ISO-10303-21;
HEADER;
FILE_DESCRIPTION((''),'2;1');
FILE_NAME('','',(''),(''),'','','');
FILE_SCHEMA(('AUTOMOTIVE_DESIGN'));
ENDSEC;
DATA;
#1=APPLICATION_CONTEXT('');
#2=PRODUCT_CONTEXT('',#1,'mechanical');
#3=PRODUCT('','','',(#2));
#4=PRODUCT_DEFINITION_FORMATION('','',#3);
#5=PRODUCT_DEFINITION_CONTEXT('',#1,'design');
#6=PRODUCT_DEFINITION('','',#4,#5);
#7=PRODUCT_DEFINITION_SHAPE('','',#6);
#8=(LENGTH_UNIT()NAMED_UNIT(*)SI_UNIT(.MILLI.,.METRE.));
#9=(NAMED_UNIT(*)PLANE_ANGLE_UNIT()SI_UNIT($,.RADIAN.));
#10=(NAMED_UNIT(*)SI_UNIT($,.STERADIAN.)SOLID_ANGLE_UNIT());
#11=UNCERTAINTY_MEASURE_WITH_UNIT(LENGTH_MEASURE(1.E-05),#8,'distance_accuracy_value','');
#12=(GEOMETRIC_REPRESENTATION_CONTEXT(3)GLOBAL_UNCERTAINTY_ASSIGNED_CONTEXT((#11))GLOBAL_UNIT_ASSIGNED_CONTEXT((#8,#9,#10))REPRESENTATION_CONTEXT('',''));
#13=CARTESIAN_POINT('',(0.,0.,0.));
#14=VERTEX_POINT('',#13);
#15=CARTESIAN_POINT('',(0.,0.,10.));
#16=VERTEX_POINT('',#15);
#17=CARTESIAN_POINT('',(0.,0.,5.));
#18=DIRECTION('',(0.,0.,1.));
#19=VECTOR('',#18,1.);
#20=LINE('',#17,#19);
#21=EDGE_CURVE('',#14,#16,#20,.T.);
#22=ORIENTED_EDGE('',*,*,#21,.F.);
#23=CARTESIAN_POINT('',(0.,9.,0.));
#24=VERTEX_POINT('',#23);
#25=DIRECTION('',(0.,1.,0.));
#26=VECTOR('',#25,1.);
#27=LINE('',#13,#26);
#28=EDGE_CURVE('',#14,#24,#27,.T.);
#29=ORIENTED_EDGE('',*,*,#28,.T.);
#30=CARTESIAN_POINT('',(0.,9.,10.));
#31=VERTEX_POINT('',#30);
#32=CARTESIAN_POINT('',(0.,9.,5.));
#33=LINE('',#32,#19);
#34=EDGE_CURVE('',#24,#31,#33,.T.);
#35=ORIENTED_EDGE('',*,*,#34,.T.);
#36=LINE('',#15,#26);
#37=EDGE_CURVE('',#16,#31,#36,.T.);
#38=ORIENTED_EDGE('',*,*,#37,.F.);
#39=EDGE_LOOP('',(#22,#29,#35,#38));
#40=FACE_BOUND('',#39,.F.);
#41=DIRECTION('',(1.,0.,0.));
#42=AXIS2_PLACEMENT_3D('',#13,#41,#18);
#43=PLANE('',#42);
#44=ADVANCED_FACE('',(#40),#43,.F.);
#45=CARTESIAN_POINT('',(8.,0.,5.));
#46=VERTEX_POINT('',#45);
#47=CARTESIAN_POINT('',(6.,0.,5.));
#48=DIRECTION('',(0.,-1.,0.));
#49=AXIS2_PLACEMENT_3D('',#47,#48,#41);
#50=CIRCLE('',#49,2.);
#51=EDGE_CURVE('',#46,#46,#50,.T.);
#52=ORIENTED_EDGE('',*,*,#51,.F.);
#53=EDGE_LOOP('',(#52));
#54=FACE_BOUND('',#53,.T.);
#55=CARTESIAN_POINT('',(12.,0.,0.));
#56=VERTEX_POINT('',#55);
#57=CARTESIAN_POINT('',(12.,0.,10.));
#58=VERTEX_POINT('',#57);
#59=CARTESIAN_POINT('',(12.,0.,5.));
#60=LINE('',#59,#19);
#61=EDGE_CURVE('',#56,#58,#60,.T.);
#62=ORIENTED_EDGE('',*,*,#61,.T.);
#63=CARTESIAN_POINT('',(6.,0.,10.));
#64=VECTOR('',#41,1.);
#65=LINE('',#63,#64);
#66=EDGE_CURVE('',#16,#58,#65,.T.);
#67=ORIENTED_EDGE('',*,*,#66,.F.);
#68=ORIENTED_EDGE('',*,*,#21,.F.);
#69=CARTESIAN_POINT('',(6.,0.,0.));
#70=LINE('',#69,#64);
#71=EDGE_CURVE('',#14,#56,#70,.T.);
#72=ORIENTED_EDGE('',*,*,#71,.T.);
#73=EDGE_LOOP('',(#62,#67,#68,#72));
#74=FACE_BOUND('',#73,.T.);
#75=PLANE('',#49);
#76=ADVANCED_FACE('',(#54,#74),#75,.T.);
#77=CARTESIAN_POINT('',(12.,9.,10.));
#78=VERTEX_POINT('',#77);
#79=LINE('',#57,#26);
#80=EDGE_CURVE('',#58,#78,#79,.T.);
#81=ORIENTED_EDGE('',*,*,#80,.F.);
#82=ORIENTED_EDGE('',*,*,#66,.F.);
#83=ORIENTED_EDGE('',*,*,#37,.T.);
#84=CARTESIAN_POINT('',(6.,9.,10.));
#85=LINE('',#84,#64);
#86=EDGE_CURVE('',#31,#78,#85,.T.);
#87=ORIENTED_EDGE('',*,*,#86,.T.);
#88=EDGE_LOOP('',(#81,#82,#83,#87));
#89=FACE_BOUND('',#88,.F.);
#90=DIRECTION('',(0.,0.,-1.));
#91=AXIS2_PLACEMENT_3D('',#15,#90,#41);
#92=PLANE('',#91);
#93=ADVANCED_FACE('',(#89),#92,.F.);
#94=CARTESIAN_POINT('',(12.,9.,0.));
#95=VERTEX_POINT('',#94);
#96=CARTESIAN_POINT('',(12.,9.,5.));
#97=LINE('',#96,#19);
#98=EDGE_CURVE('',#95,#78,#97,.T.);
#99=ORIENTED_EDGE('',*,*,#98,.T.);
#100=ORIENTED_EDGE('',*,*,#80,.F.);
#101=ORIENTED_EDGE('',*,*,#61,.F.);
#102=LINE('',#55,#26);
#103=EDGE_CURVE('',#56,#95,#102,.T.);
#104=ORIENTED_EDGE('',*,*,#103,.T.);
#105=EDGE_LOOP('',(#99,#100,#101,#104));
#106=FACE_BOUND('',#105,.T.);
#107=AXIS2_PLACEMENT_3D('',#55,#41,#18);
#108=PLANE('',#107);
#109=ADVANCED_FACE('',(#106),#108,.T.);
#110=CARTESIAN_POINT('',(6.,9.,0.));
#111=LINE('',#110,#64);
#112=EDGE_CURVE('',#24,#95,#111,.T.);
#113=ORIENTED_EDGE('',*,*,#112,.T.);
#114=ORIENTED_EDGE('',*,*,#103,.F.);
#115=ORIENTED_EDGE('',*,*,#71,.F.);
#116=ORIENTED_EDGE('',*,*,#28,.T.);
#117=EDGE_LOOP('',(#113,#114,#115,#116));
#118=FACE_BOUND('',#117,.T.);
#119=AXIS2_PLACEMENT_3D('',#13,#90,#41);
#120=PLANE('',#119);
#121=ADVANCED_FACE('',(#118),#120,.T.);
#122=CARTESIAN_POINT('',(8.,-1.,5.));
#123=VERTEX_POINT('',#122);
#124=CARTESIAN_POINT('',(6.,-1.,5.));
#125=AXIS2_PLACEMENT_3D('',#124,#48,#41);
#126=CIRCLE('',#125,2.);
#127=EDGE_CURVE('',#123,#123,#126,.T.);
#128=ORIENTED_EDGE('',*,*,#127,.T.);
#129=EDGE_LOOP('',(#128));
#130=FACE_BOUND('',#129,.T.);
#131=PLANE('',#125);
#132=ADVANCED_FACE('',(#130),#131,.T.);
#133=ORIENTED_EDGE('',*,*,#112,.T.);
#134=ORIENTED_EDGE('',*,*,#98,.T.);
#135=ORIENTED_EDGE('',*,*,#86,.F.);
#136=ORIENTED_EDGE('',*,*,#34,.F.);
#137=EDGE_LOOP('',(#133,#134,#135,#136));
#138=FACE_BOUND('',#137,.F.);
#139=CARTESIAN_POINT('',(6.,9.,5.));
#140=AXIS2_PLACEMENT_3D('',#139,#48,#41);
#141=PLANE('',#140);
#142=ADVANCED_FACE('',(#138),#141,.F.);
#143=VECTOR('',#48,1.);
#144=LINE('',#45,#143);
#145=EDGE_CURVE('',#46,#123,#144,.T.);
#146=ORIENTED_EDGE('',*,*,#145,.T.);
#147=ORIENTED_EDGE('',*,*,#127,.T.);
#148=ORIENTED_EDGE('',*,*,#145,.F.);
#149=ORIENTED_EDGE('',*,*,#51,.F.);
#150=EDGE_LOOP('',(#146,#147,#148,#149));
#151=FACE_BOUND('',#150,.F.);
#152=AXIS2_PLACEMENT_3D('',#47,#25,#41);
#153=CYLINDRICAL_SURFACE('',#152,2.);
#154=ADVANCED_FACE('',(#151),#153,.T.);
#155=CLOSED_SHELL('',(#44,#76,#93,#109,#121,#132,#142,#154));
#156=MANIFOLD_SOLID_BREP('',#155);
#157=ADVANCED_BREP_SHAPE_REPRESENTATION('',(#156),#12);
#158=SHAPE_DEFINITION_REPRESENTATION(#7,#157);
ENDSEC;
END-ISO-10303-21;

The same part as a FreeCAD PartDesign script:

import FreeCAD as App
import Part
import Sketcher
from FreeCAD import Vector


def add_polygon(sketch, points):
    """Adds a closed chain of lines whose ends are joined by coincident constraints."""
    first, n = sketch.GeometryCount, len(points)
    for a, b in zip(points, points[1:] + points[:1]):
        sketch.addGeometry(Part.LineSegment(App.Vector(*a, 0), App.Vector(*b, 0)), False)
    for i in range(n):
        sketch.addConstraint(Sketcher.Constraint("Coincident", first + i, 2, first + (i + 1) % n, 1))

doc = App.newDocument("Part")
body = doc.addObject("PartDesign::Body", "Body")

# Sketch on XZ plane
sketch1 = body.newObject("Sketcher::SketchObject", "Sketch")
sketch1.AttachmentSupport = (doc.getObject("XZ_Plane"), [""])
sketch1.MapMode = "FlatFace"
add_polygon(sketch1, [(0, 10), (0, 0), (12, 0), (12, 10)])  # lines 0-3
sketch1.addConstraint(Sketcher.Constraint("Vertical", 0))
sketch1.addConstraint(Sketcher.Constraint("Horizontal", 1))
sketch1.addConstraint(Sketcher.Constraint("Vertical", 2))
sketch1.addConstraint(Sketcher.Constraint("Horizontal", 3))
sketch1.addConstraint(Sketcher.Constraint("Coincident", 0, 2, -1, 1))
sketch1.addConstraint(Sketcher.Constraint("DistanceX", 1, 1, 1, 2, 12.0))
sketch1.addConstraint(Sketcher.Constraint("DistanceY", 0, 2, 0, 1, 10.0))
pad1 = body.newObject("PartDesign::Pad", "Pad")
pad1.Profile = sketch1
pad1.Length = 9
pad1.Reversed = True

# Sketch on XZ plane
sketch2 = body.newObject("Sketcher::SketchObject", "Sketch001")
sketch2.AttachmentSupport = (doc.getObject("XZ_Plane"), [""])
sketch2.MapMode = "FlatFace"
sketch2.addGeometry(Part.Circle(Vector(6, 5, 0), Vector(0, 0, 1), 2), False)
sketch2.addConstraint(Sketcher.Constraint("Diameter", 0, 4.0))
sketch2.addConstraint(Sketcher.Constraint("DistanceX", -1, 1, 0, 3, 6.0))
sketch2.addConstraint(Sketcher.Constraint("DistanceY", -1, 1, 0, 3, 5.0))
pad2 = body.newObject("PartDesign::Pad", "Pad001")
pad2.Profile = sketch2
pad2.Length = 1

doc.recompute()
